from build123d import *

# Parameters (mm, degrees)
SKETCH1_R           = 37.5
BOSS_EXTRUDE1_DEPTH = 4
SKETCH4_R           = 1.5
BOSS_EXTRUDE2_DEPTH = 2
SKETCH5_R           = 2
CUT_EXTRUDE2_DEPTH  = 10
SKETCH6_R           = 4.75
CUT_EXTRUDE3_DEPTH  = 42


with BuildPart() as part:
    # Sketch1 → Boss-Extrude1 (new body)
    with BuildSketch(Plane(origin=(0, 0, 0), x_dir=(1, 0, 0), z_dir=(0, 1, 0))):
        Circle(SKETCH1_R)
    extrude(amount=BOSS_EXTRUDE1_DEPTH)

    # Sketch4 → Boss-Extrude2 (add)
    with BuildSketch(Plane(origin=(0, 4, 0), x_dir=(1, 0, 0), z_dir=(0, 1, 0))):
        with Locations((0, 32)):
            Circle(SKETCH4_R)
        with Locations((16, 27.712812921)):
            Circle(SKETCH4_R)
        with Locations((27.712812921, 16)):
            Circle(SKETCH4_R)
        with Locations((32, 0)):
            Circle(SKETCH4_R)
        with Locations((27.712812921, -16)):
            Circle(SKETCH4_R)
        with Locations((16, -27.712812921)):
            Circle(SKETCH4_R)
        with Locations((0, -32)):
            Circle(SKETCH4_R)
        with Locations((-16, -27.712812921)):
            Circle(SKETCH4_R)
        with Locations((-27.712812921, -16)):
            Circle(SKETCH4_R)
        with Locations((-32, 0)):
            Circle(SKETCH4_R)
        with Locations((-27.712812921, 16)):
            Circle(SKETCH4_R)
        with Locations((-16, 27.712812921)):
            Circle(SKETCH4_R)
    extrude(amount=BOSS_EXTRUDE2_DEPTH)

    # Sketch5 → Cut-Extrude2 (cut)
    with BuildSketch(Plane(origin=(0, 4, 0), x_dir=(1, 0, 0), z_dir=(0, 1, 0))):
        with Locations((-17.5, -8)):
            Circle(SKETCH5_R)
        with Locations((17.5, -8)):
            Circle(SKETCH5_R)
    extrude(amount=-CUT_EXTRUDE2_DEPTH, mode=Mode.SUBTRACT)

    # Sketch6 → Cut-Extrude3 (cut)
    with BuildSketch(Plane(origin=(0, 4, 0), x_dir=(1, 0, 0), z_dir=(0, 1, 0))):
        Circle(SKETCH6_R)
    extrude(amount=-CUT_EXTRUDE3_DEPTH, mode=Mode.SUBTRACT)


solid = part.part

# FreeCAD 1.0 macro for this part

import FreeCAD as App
import Part
import Sketcher

doc = App.newDocument("Part")
body = doc.addObject("PartDesign::Body", "Body")

sketch1 = doc.addObject("Sketcher::SketchObject", "Sketch")
body.addObject(sketch1)
sketch1.AttachmentSupport = (doc.XZ_Plane, [""])
sketch1.MapMode = "FlatFace"
sketch1.addGeometry(Part.Circle(App.Vector(0, 0, 0), App.Vector(0, 0, 1), 37.5), False)
sketch1.addConstraint([
    Sketcher.Constraint("Coincident", 0, 3, -1, 1),
    Sketcher.Constraint("Diameter", 0, 75.0),
])
pad1 = doc.addObject("PartDesign::Pad", "Pad")
body.addObject(pad1)
pad1.Profile = sketch1
pad1.Length = 4
pad1.Reversed = True

sketch2 = doc.addObject("Sketcher::SketchObject", "Sketch001")
body.addObject(sketch2)
sketch2.AttachmentSupport = (doc.XZ_Plane, [""])
sketch2.MapMode = "FlatFace"
sketch2.AttachmentOffset = App.Placement(App.Vector(0, 0, -4), App.Rotation())
sketch2.addGeometry([
    Part.Circle(App.Vector(0, -32, 0), App.Vector(0, 0, 1), 1.5),
    Part.Circle(App.Vector(16, -27.712813, 0), App.Vector(0, 0, 1), 1.5),
    Part.Circle(App.Vector(27.712813, -16, 0), App.Vector(0, 0, 1), 1.5),
    Part.Circle(App.Vector(32, 0, 0), App.Vector(0, 0, 1), 1.5),
    Part.Circle(App.Vector(27.712813, 16, 0), App.Vector(0, 0, 1), 1.5),
    Part.Circle(App.Vector(16, 27.712813, 0), App.Vector(0, 0, 1), 1.5),
    Part.Circle(App.Vector(0, 32, 0), App.Vector(0, 0, 1), 1.5),
    Part.Circle(App.Vector(-16, 27.712813, 0), App.Vector(0, 0, 1), 1.5),
    Part.Circle(App.Vector(-27.712813, 16, 0), App.Vector(0, 0, 1), 1.5),
    Part.Circle(App.Vector(-32, 0, 0), App.Vector(0, 0, 1), 1.5),
    Part.Circle(App.Vector(-27.712813, -16, 0), App.Vector(0, 0, 1), 1.5),
    Part.Circle(App.Vector(-16, -27.712813, 0), App.Vector(0, 0, 1), 1.5),
], False)
sketch2.addConstraint([
    Sketcher.Constraint("Equal", 0, 1),
    Sketcher.Constraint("Equal", 1, 2),
    Sketcher.Constraint("Equal", 2, 3),
    Sketcher.Constraint("Equal", 3, 4),
    Sketcher.Constraint("Equal", 4, 5),
    Sketcher.Constraint("Equal", 5, 6),
    Sketcher.Constraint("Equal", 6, 7),
    Sketcher.Constraint("Equal", 7, 8),
    Sketcher.Constraint("Equal", 8, 9),
    Sketcher.Constraint("Equal", 9, 10),
    Sketcher.Constraint("Equal", 10, 11),
    Sketcher.Constraint("Symmetric", 0, 3, 6, 3, -1, 1),
    Sketcher.Constraint("Symmetric", 1, 3, 7, 3, -1, 1),
    Sketcher.Constraint("Symmetric", 2, 3, 8, 3, -1, 1),
    Sketcher.Constraint("Symmetric", 3, 3, 9, 3, -1, 1),
    Sketcher.Constraint("Symmetric", 4, 3, 10, 3, -1, 1),
    Sketcher.Constraint("Symmetric", 5, 3, 11, 3, -1, 1),
    Sketcher.Constraint("Symmetric", 5, 3, 7, 3, -2),
    Sketcher.Constraint("Symmetric", 4, 3, 8, 3, -2),
    Sketcher.Constraint("PointOnObject", 0, 3, -2),
    Sketcher.Constraint("PointOnObject", 3, 3, -1),
    Sketcher.Constraint("Diameter", 0, 3.0),
    Sketcher.Constraint("DistanceY", 0, 3, -1, 1, 32.0),
    Sketcher.Constraint("DistanceX", -1, 1, 1, 3, 16.0),
    Sketcher.Constraint("DistanceY", 2, 3, -1, 1, 16.0),
    Sketcher.Constraint("DistanceX", -1, 1, 3, 3, 32.0),
    Sketcher.Constraint("DistanceY", 1, 3, -1, 1, 27.712813),
    Sketcher.Constraint("DistanceX", -1, 1, 2, 3, 27.712813),
])
pad2 = doc.addObject("PartDesign::Pad", "Pad001")
body.addObject(pad2)
pad2.Profile = sketch2
pad2.Length = 2
pad2.Reversed = True

sketch3 = doc.addObject("Sketcher::SketchObject", "Sketch002")
body.addObject(sketch3)
sketch3.AttachmentSupport = (doc.XZ_Plane, [""])
sketch3.MapMode = "FlatFace"
sketch3.AttachmentOffset = App.Placement(App.Vector(0, 0, -4), App.Rotation())
sketch3.addGeometry([
    Part.Circle(App.Vector(-17.5, 8, 0), App.Vector(0, 0, 1), 2),
    Part.Circle(App.Vector(17.5, 8, 0), App.Vector(0, 0, 1), 2),
], False)
sketch3.addConstraint([
    Sketcher.Constraint("Equal", 0, 1),
    Sketcher.Constraint("Symmetric", 0, 3, 1, 3, -2),
    Sketcher.Constraint("Diameter", 0, 4.0),
    Sketcher.Constraint("DistanceY", -1, 1, 0, 3, 8.0),
    Sketcher.Constraint("DistanceX", 0, 3, 1, 3, 35.0),
])
pocket1 = doc.addObject("PartDesign::Pocket", "Pocket")
body.addObject(pocket1)
pocket1.Profile = sketch3
pocket1.Length = 10
pocket1.Reversed = True

sketch4 = doc.addObject("Sketcher::SketchObject", "Sketch003")
body.addObject(sketch4)
sketch4.AttachmentSupport = (doc.XZ_Plane, [""])
sketch4.MapMode = "FlatFace"
sketch4.AttachmentOffset = App.Placement(App.Vector(0, 0, -4), App.Rotation())
sketch4.addGeometry(Part.Circle(App.Vector(0, 0, 0), App.Vector(0, 0, 1), 4.75), False)
sketch4.addConstraint([
    Sketcher.Constraint("Coincident", 0, 3, -1, 1),
    Sketcher.Constraint("Diameter", 0, 9.5),
])
pocket2 = doc.addObject("PartDesign::Pocket", "Pocket001")
body.addObject(pocket2)
pocket2.Profile = sketch4
pocket2.Length = 42
pocket2.Reversed = True

doc.recompute()
